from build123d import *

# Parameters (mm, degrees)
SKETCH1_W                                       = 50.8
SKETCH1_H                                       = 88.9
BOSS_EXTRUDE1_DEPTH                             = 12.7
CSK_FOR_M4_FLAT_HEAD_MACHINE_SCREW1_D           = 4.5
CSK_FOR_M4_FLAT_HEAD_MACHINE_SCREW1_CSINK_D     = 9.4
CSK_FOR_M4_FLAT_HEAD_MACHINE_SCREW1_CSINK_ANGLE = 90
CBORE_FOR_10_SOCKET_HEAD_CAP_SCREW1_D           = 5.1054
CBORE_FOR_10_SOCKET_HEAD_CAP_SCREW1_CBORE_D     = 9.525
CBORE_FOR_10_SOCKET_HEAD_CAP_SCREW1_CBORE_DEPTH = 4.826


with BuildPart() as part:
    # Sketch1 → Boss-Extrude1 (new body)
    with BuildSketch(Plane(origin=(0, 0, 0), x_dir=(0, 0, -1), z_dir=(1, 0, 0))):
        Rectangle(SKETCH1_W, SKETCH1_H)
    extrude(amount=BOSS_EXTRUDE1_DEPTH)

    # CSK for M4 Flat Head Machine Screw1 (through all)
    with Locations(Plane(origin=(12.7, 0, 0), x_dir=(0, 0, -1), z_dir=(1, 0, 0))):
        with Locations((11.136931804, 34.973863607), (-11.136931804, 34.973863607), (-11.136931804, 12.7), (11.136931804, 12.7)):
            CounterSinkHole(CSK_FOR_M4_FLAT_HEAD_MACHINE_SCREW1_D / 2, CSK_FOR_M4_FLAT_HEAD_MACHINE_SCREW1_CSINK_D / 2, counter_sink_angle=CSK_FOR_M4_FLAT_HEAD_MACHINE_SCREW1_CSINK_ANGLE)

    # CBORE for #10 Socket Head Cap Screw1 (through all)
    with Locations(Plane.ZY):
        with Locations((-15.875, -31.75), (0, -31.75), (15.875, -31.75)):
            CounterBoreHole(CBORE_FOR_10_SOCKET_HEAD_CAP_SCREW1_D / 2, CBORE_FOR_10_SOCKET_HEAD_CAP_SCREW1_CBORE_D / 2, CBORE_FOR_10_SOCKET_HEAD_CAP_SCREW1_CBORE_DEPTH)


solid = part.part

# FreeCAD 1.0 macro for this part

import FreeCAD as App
import Part
import Sketcher

V = App.Vector
Q = App.Units.Quantity


def add_polygon(sketch, points):
    """Adds a closed chain of lines whose ends are joined by coincident constraints."""
    first, n = sketch.GeometryCount, len(points)
    for a, b in zip(points, points[1:] + points[:1]):
        sketch.addGeometry(Part.LineSegment(App.Vector(*a, 0), App.Vector(*b, 0)), False)
    for i in range(n):
        sketch.addConstraint(Sketcher.Constraint("Coincident", first + i, 2, first + (i + 1) % n, 1))

doc = App.newDocument("Part")
body = doc.addObject("PartDesign::Body", "Body")

# Sketch on YZ plane
sketch1 = body.newObject("Sketcher::SketchObject", "Sketch")
sketch1.AttachmentSupport = (doc.getObject("YZ_Plane"), [""])
sketch1.MapMode = "FlatFace"
add_polygon(sketch1, [(44, 25), (-44, 25), (-44, -25), (44, -25)])  # lines 0-3
sketch1.addConstraint([
    Sketcher.Constraint("Horizontal", 0),
    Sketcher.Constraint("Vertical", 1),
    Sketcher.Constraint("Horizontal", 2),
    Sketcher.Constraint("Vertical", 3),
    Sketcher.Constraint("Symmetric", 0, 2, 2, 2, -1, 1),
    Sketcher.Constraint("DistanceY", 1, 2, 1, 1, Q("2 in")),
    Sketcher.Constraint("DistanceX", 0, 2, 0, 1, Q("3.5 in")),
])
pad1 = body.newObject("PartDesign::Pad", "Pad")
pad1.Profile = sketch1
pad1.Length = Q("0.5 in")

# Sketch on YZ plane
sketch2 = body.newObject("Sketcher::SketchObject", "Sketch001")
sketch2.AttachmentSupport = (doc.getObject("YZ_Plane"), [""])
sketch2.MapMode = "FlatFace"
sketch2.AttachmentOffset = App.Placement(V(0, 0, 0.5 * 25.4), App.Rotation())
sketch2.addGeometry([
    Part.Circle(V(35, -11.1, 0), V(0, 0, 1), 2.2),
    Part.Circle(V(35, 11.1, 0), V(0, 0, 1), 2.2),
    Part.Circle(V(12.7, 11.1, 0), V(0, 0, 1), 2.2),
    Part.Circle(V(12.7, -11.1, 0), V(0, 0, 1), 2.2),
], False)
sketch2.addConstraint([
    Sketcher.Constraint("Equal", 0, 1),
    Sketcher.Constraint("Equal", 1, 2),
    Sketcher.Constraint("Equal", 2, 3),
    Sketcher.Constraint("Symmetric", 0, 3, 1, 3, -1),
    Sketcher.Constraint("Symmetric", 2, 3, 3, 3, -1),
    Sketcher.Constraint("Horizontal", 1, 3, 2, 3),
    Sketcher.Constraint("DistanceX", -1, 1, 2, 3, Q("0.5 in")),
    Sketcher.Constraint("Diameter", 0, 4.5),
    Sketcher.Constraint("DistanceY", 0, 3, -1, 1, 11.136932),
    Sketcher.Constraint("DistanceX", -1, 1, 0, 3, 34.973864),
])
doc.recompute()
hole = body.newObject("PartDesign::Hole", "Hole")
hole.Profile = sketch2
hole.ThreadType = "None"
hole.Diameter = 4.5
hole.DepthType = "ThroughAll"
hole.HoleCutType = "Countersink"
hole.HoleCutDiameter = 9.4
hole.HoleCutCountersinkAngle = 90

# Sketch on YZ plane
sketch3 = body.newObject("Sketcher::SketchObject", "Sketch002")
sketch3.AttachmentSupport = (doc.getObject("YZ_Plane"), [""])
sketch3.MapMode = "FlatFace"
sketch3.addGeometry([
    Part.Circle(V(-31.8, -15.9, 0), V(0, 0, 1), 2.6),
    Part.Circle(V(-31.8, 0, 0), V(0, 0, 1), 2.6),
    Part.Circle(V(-31.8, 15.9, 0), V(0, 0, 1), 2.6),
], False)
sketch3.addConstraint([
    Sketcher.Constraint("Equal", 0, 1),
    Sketcher.Constraint("Equal", 1, 2),
    Sketcher.Constraint("Symmetric", 0, 3, 2, 3, -1),
    Sketcher.Constraint("PointOnObject", 1, 3, -1),
    Sketcher.Constraint("Vertical", 0, 3, 1, 3),
    Sketcher.Constraint("Diameter", 0, Q("0.201 in")),
    Sketcher.Constraint("DistanceX", 0, 3, -1, 1, Q("1.25 in")),
    Sketcher.Constraint("DistanceY", 0, 3, 2, 3, Q("1.25 in")),
])
doc.recompute()
hole2 = body.newObject("PartDesign::Hole", "Hole001")
hole2.Profile = sketch3
hole2.ThreadType = "None"
hole2.Diameter = Q("0.201 in")
hole2.DepthType = "ThroughAll"
hole2.HoleCutType = "Counterbore"
hole2.HoleCutDiameter = Q("0.375 in")
hole2.HoleCutDepth = Q("0.19 in")
hole2.Reversed = True

doc.recompute()
